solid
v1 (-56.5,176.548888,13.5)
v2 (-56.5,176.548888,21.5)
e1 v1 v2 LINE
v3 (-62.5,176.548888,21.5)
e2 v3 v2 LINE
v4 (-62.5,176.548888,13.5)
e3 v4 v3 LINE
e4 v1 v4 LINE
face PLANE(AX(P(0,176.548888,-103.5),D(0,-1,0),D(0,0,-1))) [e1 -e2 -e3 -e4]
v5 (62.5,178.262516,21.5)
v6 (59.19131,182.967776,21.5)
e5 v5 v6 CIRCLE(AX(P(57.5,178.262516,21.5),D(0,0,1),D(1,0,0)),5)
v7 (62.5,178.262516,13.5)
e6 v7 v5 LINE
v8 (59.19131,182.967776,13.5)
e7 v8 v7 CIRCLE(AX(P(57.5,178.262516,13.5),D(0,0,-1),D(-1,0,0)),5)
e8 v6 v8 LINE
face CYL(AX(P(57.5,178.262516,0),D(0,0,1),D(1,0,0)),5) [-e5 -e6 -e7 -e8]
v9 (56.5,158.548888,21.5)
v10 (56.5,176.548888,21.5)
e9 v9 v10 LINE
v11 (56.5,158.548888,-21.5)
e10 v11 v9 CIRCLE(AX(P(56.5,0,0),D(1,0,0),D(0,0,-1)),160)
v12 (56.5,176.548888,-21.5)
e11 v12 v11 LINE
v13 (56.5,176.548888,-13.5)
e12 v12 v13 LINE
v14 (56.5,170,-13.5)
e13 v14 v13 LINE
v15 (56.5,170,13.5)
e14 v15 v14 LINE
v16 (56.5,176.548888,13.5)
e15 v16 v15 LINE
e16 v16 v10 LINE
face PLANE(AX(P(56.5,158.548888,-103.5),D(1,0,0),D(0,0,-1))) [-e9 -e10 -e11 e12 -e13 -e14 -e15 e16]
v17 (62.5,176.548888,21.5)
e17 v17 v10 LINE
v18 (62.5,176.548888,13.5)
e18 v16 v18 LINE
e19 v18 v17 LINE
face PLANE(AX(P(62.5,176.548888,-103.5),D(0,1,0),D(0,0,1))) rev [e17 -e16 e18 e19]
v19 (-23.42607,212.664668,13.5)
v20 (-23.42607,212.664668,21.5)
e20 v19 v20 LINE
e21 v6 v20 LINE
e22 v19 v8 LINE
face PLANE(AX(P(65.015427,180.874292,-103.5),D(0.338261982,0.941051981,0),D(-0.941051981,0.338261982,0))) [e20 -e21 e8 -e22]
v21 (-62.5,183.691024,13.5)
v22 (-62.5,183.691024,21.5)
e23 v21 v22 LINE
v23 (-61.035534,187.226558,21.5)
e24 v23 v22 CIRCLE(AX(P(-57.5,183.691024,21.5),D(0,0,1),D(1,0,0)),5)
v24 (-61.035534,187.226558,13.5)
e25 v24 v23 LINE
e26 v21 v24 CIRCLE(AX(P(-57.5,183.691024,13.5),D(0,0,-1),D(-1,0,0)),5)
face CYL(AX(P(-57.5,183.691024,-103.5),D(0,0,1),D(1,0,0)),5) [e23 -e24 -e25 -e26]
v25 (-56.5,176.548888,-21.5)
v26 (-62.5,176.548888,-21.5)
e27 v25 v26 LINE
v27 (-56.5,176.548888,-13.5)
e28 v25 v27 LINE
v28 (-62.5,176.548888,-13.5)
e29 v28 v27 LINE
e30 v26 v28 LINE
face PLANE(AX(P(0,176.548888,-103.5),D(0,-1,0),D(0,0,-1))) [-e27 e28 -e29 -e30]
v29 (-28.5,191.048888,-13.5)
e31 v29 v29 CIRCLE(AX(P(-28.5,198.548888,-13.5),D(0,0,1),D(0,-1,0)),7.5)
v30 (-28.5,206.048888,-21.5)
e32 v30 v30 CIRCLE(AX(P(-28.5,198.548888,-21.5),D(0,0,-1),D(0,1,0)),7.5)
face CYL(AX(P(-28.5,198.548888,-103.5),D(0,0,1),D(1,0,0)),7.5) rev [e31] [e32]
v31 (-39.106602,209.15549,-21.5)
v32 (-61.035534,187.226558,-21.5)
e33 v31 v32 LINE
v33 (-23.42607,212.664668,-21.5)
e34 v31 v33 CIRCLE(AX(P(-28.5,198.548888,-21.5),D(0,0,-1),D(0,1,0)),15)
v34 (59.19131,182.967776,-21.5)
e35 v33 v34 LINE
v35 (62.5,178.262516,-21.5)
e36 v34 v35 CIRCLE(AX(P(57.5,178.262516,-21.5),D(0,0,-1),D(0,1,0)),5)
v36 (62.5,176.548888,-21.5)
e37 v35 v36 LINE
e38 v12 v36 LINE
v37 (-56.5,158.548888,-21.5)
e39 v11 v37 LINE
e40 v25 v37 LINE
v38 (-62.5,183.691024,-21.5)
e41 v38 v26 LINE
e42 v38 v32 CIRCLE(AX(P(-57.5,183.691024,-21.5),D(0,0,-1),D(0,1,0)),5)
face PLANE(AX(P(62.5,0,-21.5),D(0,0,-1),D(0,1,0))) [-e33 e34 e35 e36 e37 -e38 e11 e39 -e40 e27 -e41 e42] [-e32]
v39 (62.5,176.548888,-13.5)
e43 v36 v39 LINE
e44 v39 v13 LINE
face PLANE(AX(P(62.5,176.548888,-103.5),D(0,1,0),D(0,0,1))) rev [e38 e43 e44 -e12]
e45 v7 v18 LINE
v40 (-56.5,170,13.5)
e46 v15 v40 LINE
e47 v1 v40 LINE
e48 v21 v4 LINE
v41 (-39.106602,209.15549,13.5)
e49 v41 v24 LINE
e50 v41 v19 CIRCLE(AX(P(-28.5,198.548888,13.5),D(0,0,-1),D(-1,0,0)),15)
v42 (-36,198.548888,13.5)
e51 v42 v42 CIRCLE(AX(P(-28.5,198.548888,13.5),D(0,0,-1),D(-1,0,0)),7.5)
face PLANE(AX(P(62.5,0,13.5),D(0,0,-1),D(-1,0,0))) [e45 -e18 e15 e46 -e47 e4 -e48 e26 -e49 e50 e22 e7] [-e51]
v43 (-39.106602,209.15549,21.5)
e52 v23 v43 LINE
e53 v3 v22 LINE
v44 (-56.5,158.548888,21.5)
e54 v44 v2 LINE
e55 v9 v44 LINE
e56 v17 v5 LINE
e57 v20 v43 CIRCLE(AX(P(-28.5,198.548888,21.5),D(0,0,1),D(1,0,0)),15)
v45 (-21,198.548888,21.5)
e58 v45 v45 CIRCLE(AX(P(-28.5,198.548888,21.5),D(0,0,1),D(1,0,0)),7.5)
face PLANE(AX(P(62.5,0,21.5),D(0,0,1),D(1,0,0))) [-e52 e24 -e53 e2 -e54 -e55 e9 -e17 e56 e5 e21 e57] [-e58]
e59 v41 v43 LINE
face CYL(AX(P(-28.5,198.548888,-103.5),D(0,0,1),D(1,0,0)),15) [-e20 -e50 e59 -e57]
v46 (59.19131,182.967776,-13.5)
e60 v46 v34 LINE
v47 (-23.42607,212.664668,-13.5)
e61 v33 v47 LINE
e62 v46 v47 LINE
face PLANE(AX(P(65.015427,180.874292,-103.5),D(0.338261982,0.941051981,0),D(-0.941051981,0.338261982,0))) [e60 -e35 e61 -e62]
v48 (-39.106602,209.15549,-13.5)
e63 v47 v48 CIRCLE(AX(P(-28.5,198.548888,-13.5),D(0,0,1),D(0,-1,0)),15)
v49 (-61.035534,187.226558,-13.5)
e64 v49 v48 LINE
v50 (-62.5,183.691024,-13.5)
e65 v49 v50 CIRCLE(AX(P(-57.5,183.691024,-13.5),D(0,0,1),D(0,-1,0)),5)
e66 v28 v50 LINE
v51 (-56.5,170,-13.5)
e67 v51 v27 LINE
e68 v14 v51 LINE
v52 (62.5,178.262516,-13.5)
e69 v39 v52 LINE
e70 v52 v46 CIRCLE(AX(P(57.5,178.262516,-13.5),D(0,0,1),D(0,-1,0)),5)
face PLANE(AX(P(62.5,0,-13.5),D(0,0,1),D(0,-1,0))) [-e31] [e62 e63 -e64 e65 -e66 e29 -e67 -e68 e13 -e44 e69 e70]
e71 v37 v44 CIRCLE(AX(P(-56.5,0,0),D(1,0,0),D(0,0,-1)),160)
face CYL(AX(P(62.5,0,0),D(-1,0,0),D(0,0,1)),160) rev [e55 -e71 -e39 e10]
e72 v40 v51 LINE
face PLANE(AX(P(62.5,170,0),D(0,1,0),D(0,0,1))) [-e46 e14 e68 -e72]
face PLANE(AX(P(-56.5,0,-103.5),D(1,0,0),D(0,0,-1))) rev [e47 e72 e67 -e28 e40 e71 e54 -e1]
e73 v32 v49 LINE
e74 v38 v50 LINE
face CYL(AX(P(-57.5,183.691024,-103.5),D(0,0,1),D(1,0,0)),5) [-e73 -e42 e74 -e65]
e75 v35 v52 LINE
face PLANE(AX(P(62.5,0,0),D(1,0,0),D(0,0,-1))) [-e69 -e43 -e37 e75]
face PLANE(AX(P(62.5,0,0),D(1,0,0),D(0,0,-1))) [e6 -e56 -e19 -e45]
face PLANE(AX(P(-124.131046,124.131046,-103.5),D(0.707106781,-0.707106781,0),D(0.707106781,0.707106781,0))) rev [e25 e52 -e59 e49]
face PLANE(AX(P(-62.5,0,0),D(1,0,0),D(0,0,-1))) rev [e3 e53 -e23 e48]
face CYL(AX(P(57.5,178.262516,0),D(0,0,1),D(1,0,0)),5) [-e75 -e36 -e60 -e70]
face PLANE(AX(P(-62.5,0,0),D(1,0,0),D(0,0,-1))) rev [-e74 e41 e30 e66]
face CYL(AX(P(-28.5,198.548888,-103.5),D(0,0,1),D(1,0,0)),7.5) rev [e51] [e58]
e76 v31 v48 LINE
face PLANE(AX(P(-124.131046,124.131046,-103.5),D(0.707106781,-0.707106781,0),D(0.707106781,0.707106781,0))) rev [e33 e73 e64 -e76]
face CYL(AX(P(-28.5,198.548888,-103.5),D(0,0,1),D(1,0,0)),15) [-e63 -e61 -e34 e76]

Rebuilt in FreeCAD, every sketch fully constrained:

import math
import FreeCAD as App
import Part
import Sketcher
from FreeCAD import Vector
Q = App.Units.Quantity


def edges_at(feature, points):
    """Names of the edges that pass closest to the given points."""
    edges = feature.Shape.Edges
    near = lambda p: min(range(len(edges)), key=lambda i: edges[i].distToShape(Part.Vertex(*p))[0])
    return sorted({f"Edge{near(p) + 1}" for p in points})


def add_polygon(sketch, points):
    """Adds a closed chain of lines whose ends are joined by coincident constraints."""
    first, n = sketch.GeometryCount, len(points)
    for a, b in zip(points, points[1:] + points[:1]):
        sketch.addGeometry(Part.LineSegment(App.Vector(*a, 0), App.Vector(*b, 0)), False)
    for i in range(n):
        sketch.addConstraint(Sketcher.Constraint("Coincident", first + i, 2, first + (i + 1) % n, 1))

doc = App.newDocument("Part")
params = doc.addObject("Spreadsheet::Sheet", "Params")
for row, (alias, value) in enumerate([
    ("sketch1_radius", "160 mm"),
    ("sketch1_width", "55 mm"),
    ("sketch1_height", "8 mm"),
    ("sketch1_height2", "27 mm"),
    ("pad1_length", "125 mm"),
    ("sketch2_diameter", "15 mm"),
    ("sketch2_radius", "15 mm"),
    ("sketch2_radius2", "5 mm"),
    ("sketch2_width", "91 mm"),
    ("sketch2_width2", "34 mm"),
    ("pocket1_length", "125 mm"),
    ("fillet_radius", "5 mm"),
], start=1):
    params.set(f"A{row}", alias)
    params.set(f"B{row}", "=" + value)
    params.setAlias(f"B{row}", alias)

body = doc.addObject("PartDesign::Body", "Body")

sketch1 = doc.addObject("Sketcher::SketchObject", "Sketch")
body.addObject(sketch1)
sketch1.AttachmentSupport = (doc.YZ_Plane, [""])
sketch1.MapMode = "FlatFace"
sketch1.addGeometry([
    Part.LineSegment(Vector(214, 22, 0), Vector(159, 22, 0)),
    Part.ArcOfCircle(Part.Circle(Vector(0, 0, 0), Vector(0, 0, 1), 160), math.radians(-7.72), math.radians(7.72)),
    Part.LineSegment(Vector(159, -22, 0), Vector(214, -22, 0)),
    Part.LineSegment(Vector(214, -22, 0), Vector(214, -14, 0)),
    Part.LineSegment(Vector(214, -14, 0), Vector(170, -14, 0)),
    Part.LineSegment(Vector(170, -14, 0), Vector(170, 14, 0)),
    Part.LineSegment(Vector(170, 14, 0), Vector(214, 14, 0)),
    Part.LineSegment(Vector(214, 14, 0), Vector(214, 22, 0)),
], False)
sketch1.addConstraint([
    Sketcher.Constraint("Coincident", 0, 2, 1, 2),
    Sketcher.Constraint("Coincident", 1, 1, 2, 1),
    Sketcher.Constraint("Coincident", 2, 2, 3, 1),
    Sketcher.Constraint("Coincident", 3, 2, 4, 1),
    Sketcher.Constraint("Coincident", 4, 2, 5, 1),
    Sketcher.Constraint("Coincident", 5, 2, 6, 1),
    Sketcher.Constraint("Coincident", 6, 2, 7, 1),
    Sketcher.Constraint("Coincident", 7, 2, 0, 1),
    Sketcher.Constraint("Horizontal", 0),
    Sketcher.Constraint("Horizontal", 2),
    Sketcher.Constraint("Vertical", 3),
    Sketcher.Constraint("Horizontal", 4),
    Sketcher.Constraint("Vertical", 5),
    Sketcher.Constraint("Horizontal", 6),
    Sketcher.Constraint("Vertical", 7),
    Sketcher.Constraint("Coincident", 1, 3, -1, 1),
    Sketcher.Constraint("Symmetric", 3, 2, 6, 2, -1),
    Sketcher.Constraint("Vertical", 0, 2, 1, 1),
    Sketcher.Constraint("Radius", 1, Q("160 mm")),
    Sketcher.Constraint("DistanceX", 0, 2, 0, 1, Q("55 mm")),
    Sketcher.Constraint("DistanceY", 3, 1, 3, 2, Q("8 mm")),
    Sketcher.Constraint("DistanceY", 5, 1, 5, 2, Q("27 mm")),
    Sketcher.Constraint("DistanceX", -1, 1, 4, 2, Q("170 mm")),
])
sketch1.setExpression("Constraints[18]", "Params.sketch1_radius")
sketch1.setExpression("Constraints[19]", "Params.sketch1_width")
sketch1.setExpression("Constraints[20]", "Params.sketch1_height")
sketch1.setExpression("Constraints[21]", "Params.sketch1_height2")
pad1 = doc.addObject("PartDesign::Pad", "Pad")
body.addObject(pad1)
pad1.Profile = sketch1
pad1.setExpression("Length", "Params.pad1_length")
pad1.Midplane = True

sketch2 = doc.addObject("Sketcher::SketchObject", "Sketch001")
body.addObject(sketch2)
sketch2.AttachmentSupport = (doc.XY_Plane, [""])
sketch2.MapMode = "FlatFace"
sketch2.AttachmentOffset = App.Placement(Vector(0, 0, 21.5), App.Rotation())
sketch2.addGeometry(Part.LineSegment(Vector(62.5, 213.5, 0), Vector(-28.5, 213.5, 0)), False)
sketch2.addGeometry(Part.ArcOfCircle(Part.Circle(Vector(-28.5, 198.5, 0), Vector(0, 0, 1), 15), math.radians(70.23), math.radians(90)), False)
sketch2.addGeometry(Part.LineSegment(Vector(-23.4, 212.7, 0), Vector(62.5, 181.8, 0)), False)
sketch2.addGeometry(Part.LineSegment(Vector(62.5, 181.8, 0), Vector(62.5, 213.5, 0)), False)
sketch2.addGeometry(Part.ArcOfCircle(Part.Circle(Vector(-57.5, 183.7, 0), Vector(0, 0, 1), 5), math.radians(135), math.radians(180)), False)
sketch2.addGeometry(Part.LineSegment(Vector(-61, 187.2, 0), Vector(-39.1, 209.2, 0)), False)
sketch2.addGeometry(Part.ArcOfCircle(Part.Circle(Vector(-28.5, 198.5, 0), Vector(0, 0, 1), 15), math.radians(90), math.radians(135)), False)
sketch2.addGeometry(Part.LineSegment(Vector(-28.5, 213.5, 0), Vector(-62.5, 213.5, 0)), False)
sketch2.addGeometry(Part.LineSegment(Vector(-62.5, 213.5, 0), Vector(-62.5, 183.7, 0)), False)
add_polygon(sketch2, [(-56.5, 176.5), (-62.5, 176.5), (-62.5, 158.5), (-56.5, 158.5)])
sketch2.addGeometry(Part.Circle(Vector(-28.5, 198.5, 0), Vector(0, 0, 1), 7.5), False)
add_polygon(sketch2, [(56.5, 176.5), (56.5, 158.5), (62.5, 158.5), (62.5, 176.5)])
sketch2.addConstraint([
    Sketcher.Constraint("Tangent", 0, 2, 1, 2),
    Sketcher.Constraint("Tangent", 1, 1, 2, 1),
    Sketcher.Constraint("Coincident", 2, 2, 3, 1),
    Sketcher.Constraint("Coincident", 3, 2, 0, 1),
    Sketcher.Constraint("Tangent", 4, 1, 5, 1),
    Sketcher.Constraint("Tangent", 5, 2, 6, 2),
    Sketcher.Constraint("Tangent", 6, 1, 7, 1),
    Sketcher.Constraint("Coincident", 7, 2, 8, 1),
    Sketcher.Constraint("Tangent", 8, 2, 4, 2),
    Sketcher.Constraint("Horizontal", 0),
    Sketcher.Constraint("Vertical", 3),
    Sketcher.Constraint("Horizontal", 7),
    Sketcher.Constraint("Vertical", 8),
    Sketcher.Constraint("Horizontal", 9),
    Sketcher.Constraint("Vertical", 10),
    Sketcher.Constraint("Horizontal", 11),
    Sketcher.Constraint("Vertical", 12),
    Sketcher.Constraint("Vertical", 14),
    Sketcher.Constraint("Horizontal", 15),
    Sketcher.Constraint("Vertical", 16),
    Sketcher.Constraint("Horizontal", 17),
    Sketcher.Constraint("Coincident", 6, 3, 1, 3),
    Sketcher.Constraint("Coincident", 13, 3, 1, 3),
    Sketcher.Constraint("Equal", 1, 6),
    Sketcher.Constraint("Symmetric", 11, 2, 14, 2, -2),
    Sketcher.Constraint("Symmetric", 9, 2, 16, 2, -2),
    Sketcher.Constraint("Vertical", 8, 2, 9, 2),
    Sketcher.Constraint("Vertical", 3, 2, 15, 2),
    Sketcher.Constraint("Diameter", 13, Q("15 mm")),
    Sketcher.Constraint("Radius", 1, Q("15 mm")),
    Sketcher.Constraint("Radius", 4, Q("5 mm")),
    Sketcher.Constraint("DistanceX", 0, 2, 0, 1, Q("91 mm")),
    Sketcher.Constraint("DistanceX", 7, 2, 7, 1, Q("34 mm")),
    Sketcher.Constraint("DistanceX", 9, 2, 9, 1, Q("6 mm")),
    Sketcher.Constraint("DistanceY", 10, 2, 10, 1, Q("18 mm")),
    Sketcher.Constraint("Angle", 5, Q("45 deg")),
    Sketcher.Constraint("DistanceY", 9, 2, 7, 2, Q("37 mm")),
    Sketcher.Constraint("DistanceY", 3, 1, 3, 2, Q("31.770424 mm")),
    Sketcher.Constraint("DistanceY", -1, 1, 1, 3, Q("198.548888 mm")),
])
sketch2.setExpression("Constraints[36]", "Params.sketch2_diameter")
sketch2.setExpression("Constraints[37]", "Params.sketch2_radius")
sketch2.setExpression("Constraints[38]", "Params.sketch2_radius2")
sketch2.setExpression("Constraints[39]", "Params.sketch2_width")
sketch2.setExpression("Constraints[40]", "Params.sketch2_width2")
pocket1 = doc.addObject("PartDesign::Pocket", "Pocket")
body.addObject(pocket1)
pocket1.Profile = sketch2
pocket1.setExpression("Length", "Params.pocket1_length")
doc.recompute()

fillet = doc.addObject("PartDesign::Fillet", "Fillet")
body.addObject(fillet)
fillet.Base = (pocket1, edges_at(pocket1, [(62.5, 181.778, 17.5), (62.5, 181.778, -17.5)]))
fillet.setExpression("Radius", "Params.fillet_radius")

doc.recompute()
